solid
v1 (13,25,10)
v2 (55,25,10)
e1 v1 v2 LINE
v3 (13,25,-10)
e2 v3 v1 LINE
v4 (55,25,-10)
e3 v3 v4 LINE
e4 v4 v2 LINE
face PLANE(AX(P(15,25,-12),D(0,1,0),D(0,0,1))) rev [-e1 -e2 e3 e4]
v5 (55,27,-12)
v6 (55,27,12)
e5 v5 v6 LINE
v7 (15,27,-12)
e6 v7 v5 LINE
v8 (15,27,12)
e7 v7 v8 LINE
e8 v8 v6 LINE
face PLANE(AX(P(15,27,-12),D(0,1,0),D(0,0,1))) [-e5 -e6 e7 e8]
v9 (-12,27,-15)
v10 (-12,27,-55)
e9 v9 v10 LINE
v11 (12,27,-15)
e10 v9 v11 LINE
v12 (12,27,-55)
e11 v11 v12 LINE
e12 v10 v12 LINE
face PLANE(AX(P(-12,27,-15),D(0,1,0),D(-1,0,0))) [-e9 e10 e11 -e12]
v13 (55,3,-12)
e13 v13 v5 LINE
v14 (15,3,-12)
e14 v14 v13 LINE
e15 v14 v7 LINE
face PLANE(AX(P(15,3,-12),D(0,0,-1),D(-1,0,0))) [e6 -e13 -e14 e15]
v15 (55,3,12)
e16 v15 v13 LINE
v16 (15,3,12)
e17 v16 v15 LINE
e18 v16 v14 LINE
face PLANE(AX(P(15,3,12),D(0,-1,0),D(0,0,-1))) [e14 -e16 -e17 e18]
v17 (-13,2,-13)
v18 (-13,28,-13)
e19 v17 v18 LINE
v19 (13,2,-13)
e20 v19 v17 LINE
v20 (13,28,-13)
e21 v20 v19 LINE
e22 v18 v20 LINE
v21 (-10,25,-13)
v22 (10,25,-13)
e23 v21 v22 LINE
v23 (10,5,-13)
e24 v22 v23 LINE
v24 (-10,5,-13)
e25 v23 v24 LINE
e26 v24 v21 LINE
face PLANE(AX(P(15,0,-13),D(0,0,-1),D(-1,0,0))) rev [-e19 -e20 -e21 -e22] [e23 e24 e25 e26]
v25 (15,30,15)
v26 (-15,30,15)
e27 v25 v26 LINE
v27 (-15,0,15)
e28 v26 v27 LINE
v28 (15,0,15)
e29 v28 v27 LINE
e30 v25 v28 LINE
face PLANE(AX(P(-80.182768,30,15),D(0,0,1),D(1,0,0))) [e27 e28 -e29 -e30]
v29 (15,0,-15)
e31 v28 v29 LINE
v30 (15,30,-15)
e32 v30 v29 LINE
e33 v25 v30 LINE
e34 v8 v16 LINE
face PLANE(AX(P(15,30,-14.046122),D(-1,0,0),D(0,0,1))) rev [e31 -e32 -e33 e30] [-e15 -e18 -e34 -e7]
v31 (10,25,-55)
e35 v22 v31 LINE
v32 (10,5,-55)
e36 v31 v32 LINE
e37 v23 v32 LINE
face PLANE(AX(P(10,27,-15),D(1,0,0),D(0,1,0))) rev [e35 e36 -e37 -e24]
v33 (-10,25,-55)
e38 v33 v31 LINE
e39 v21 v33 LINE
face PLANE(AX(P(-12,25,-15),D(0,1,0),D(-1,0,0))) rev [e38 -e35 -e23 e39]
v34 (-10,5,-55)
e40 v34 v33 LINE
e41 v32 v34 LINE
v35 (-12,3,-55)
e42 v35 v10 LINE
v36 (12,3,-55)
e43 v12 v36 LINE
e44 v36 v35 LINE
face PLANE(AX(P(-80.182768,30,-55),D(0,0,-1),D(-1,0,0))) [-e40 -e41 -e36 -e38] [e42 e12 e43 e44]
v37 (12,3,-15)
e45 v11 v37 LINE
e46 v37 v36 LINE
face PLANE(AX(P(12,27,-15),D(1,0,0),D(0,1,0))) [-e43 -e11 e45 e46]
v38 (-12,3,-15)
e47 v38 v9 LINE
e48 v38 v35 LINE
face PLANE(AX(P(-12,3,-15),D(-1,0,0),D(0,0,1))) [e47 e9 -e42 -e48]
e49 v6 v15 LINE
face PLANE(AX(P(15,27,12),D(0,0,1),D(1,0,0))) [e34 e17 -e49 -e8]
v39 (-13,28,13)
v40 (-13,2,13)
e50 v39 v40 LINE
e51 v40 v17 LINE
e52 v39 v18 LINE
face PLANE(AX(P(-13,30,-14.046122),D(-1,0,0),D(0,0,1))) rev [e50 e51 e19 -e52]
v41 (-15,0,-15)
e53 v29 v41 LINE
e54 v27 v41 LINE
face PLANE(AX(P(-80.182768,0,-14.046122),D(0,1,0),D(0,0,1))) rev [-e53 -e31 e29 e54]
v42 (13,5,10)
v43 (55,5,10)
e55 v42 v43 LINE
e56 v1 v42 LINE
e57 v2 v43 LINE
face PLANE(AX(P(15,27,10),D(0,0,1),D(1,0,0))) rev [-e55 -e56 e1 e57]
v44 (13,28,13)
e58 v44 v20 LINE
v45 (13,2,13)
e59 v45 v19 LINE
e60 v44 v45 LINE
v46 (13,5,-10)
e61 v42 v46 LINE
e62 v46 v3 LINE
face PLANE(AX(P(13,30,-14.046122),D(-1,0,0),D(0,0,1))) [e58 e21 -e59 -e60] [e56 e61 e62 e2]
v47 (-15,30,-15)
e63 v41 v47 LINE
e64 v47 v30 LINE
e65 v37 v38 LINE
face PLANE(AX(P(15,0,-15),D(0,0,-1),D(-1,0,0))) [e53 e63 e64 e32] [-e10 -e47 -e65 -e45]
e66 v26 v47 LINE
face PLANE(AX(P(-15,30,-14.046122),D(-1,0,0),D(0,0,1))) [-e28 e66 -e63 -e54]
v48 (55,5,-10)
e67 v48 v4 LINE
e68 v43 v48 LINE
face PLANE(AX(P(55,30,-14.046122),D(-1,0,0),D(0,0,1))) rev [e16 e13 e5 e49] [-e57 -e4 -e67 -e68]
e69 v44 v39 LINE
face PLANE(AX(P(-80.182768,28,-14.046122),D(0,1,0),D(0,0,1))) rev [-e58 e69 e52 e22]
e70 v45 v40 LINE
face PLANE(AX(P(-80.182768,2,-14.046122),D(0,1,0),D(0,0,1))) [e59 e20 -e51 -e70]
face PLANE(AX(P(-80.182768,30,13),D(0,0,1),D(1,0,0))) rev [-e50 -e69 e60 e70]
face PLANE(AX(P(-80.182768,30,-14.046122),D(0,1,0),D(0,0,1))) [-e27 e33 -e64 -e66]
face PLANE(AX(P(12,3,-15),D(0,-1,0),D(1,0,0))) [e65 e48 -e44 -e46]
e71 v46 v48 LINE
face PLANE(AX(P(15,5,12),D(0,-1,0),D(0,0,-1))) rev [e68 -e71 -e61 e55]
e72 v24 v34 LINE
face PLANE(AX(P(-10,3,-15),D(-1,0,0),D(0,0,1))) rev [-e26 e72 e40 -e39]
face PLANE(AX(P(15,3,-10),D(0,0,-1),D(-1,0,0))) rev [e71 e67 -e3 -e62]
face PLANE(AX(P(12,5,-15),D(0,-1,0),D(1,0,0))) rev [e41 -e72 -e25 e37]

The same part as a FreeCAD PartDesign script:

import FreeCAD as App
import Part
import Sketcher
Q = App.Units.Quantity


def faces_at(feature, points):
    """Names of the faces that lie closest to the given points."""
    faces = feature.Shape.Faces
    near = lambda p: min(range(len(faces)), key=lambda i: faces[i].distToShape(Part.Vertex(*p))[0])
    return sorted({f"Face{near(p) + 1}" for p in points})


def add_polygon(sketch, points):
    """Adds a closed chain of lines whose ends are joined by coincident constraints."""
    first, n = sketch.GeometryCount, len(points)
    for a, b in zip(points, points[1:] + points[:1]):
        sketch.addGeometry(Part.LineSegment(App.Vector(*a, 0), App.Vector(*b, 0)), False)
    for i in range(n):
        sketch.addConstraint(Sketcher.Constraint("Coincident", first + i, 2, first + (i + 1) % n, 1))

doc = App.newDocument("Part")
body = doc.addObject("PartDesign::Body", "Body")

# Sketch on XZ plane
sketch1 = doc.addObject("Sketcher::SketchObject", "Sketch")
body.addObject(sketch1)
sketch1.AttachmentSupport = (doc.XZ_Plane, [""])
sketch1.MapMode = "FlatFace"
add_polygon(sketch1, [(-15, -55), (-15, 15), (55, 15), (55, -15), (15, -15), (15, -55)])  # lines 0-5
sketch1.addConstraint(Sketcher.Constraint("Vertical", 0))
sketch1.addConstraint(Sketcher.Constraint("Horizontal", 1))
sketch1.addConstraint(Sketcher.Constraint("Vertical", 2))
sketch1.addConstraint(Sketcher.Constraint("Horizontal", 3))
sketch1.addConstraint(Sketcher.Constraint("Vertical", 4))
sketch1.addConstraint(Sketcher.Constraint("Horizontal", 5))
sketch1.addConstraint(Sketcher.Constraint("Symmetric", 0, 2, 3, 2, -1, 1))
sketch1.addConstraint(Sketcher.Constraint("Equal", 1, 0))
sketch1.addConstraint(Sketcher.Constraint("Equal", 5, 2))
sketch1.addConstraint(Sketcher.Constraint("DistanceX", 1, 1, 1, 2, Q("70 mm")))
sketch1.addConstraint(Sketcher.Constraint("DistanceX", 3, 2, 3, 1, Q("40 mm")))
pad1 = doc.addObject("PartDesign::Pad", "Pad")
body.addObject(pad1)
pad1.Profile = sketch1
pad1.Length = 30
pad1.Reversed = True

# Sketch on YZ plane
sketch2 = doc.addObject("Sketcher::SketchObject", "Sketch001")
body.addObject(sketch2)
sketch2.AttachmentSupport = (doc.YZ_Plane, [""])
sketch2.MapMode = "FlatFace"
sketch2.AttachmentOffset = App.Placement(App.Vector(0, 0, 55), App.Rotation())
add_polygon(sketch2, [(30, 15), (0, 15), (0, -15), (30, -15)])  # lines 0-3
add_polygon(sketch2, [(3, -12), (3, 12), (27, 12), (27, -12)])  # lines 4-7
sketch2.addConstraint(Sketcher.Constraint("Horizontal", 0))
sketch2.addConstraint(Sketcher.Constraint("Vertical", 1))
sketch2.addConstraint(Sketcher.Constraint("Horizontal", 2))
sketch2.addConstraint(Sketcher.Constraint("Vertical", 3))
sketch2.addConstraint(Sketcher.Constraint("Vertical", 4))
sketch2.addConstraint(Sketcher.Constraint("Horizontal", 5))
sketch2.addConstraint(Sketcher.Constraint("Vertical", 6))
sketch2.addConstraint(Sketcher.Constraint("Horizontal", 7))
sketch2.addConstraint(Sketcher.Constraint("Symmetric", 0, 2, 1, 2, -1, 1))
sketch2.addConstraint(Sketcher.Constraint("Equal", 2, 1))
sketch2.addConstraint(Sketcher.Constraint("Equal", 7, 4))
sketch2.addConstraint(Sketcher.Constraint("DistanceX", 0, 2, 0, 1, Q("30 mm")))
sketch2.addConstraint(Sketcher.Constraint("DistanceX", 5, 1, 5, 2, Q("24 mm")))
sketch2.addConstraint(Sketcher.Constraint("DistanceX", -1, 1, 4, 2, Q("3 mm")))
sketch2.addConstraint(Sketcher.Constraint("DistanceY", -1, 1, 4, 2, Q("12 mm")))
pocket1 = doc.addObject("PartDesign::Pocket", "Pocket")
body.addObject(pocket1)
pocket1.Profile = sketch2
pocket1.Length = 40

# Sketch on XY plane
sketch3 = doc.addObject("Sketcher::SketchObject", "Sketch002")
body.addObject(sketch3)
sketch3.AttachmentSupport = (doc.XY_Plane, [""])
sketch3.MapMode = "FlatFace"
sketch3.AttachmentOffset = App.Placement(App.Vector(0, 0, -55), App.Rotation())
add_polygon(sketch3, [(15, 30), (15, 0), (-15, 0), (-15, 30)])  # lines 0-3
add_polygon(sketch3, [(-12, 3), (12, 3), (12, 27), (-12, 27)])  # lines 4-7
sketch3.addConstraint(Sketcher.Constraint("Vertical", 0))
sketch3.addConstraint(Sketcher.Constraint("Horizontal", 1))
sketch3.addConstraint(Sketcher.Constraint("Vertical", 2))
sketch3.addConstraint(Sketcher.Constraint("Horizontal", 3))
sketch3.addConstraint(Sketcher.Constraint("Horizontal", 4))
sketch3.addConstraint(Sketcher.Constraint("Vertical", 5))
sketch3.addConstraint(Sketcher.Constraint("Horizontal", 6))
sketch3.addConstraint(Sketcher.Constraint("Vertical", 7))
sketch3.addConstraint(Sketcher.Constraint("Symmetric", 0, 2, 1, 2, -1, 1))
sketch3.addConstraint(Sketcher.Constraint("Equal", 3, 0))
sketch3.addConstraint(Sketcher.Constraint("Equal", 6, 5))
sketch3.addConstraint(Sketcher.Constraint("DistanceX", 1, 2, 1, 1, Q("30 mm")))
sketch3.addConstraint(Sketcher.Constraint("DistanceX", 4, 1, 4, 2, Q("24 mm")))
sketch3.addConstraint(Sketcher.Constraint("DistanceX", -1, 1, 4, 2, Q("12 mm")))
sketch3.addConstraint(Sketcher.Constraint("DistanceY", -1, 1, 4, 2, Q("3 mm")))
pocket2 = doc.addObject("PartDesign::Pocket", "Pocket001")
body.addObject(pocket2)
pocket2.Profile = sketch3
pocket2.Length = 40
pocket2.Reversed = True
doc.recompute()

thickness = doc.addObject("PartDesign::Thickness", "Thickness")
body.addObject(thickness)
thickness.Base = (pocket2, faces_at(pocket2, [(55, 15, 0), (0, 15, -55)]))
thickness.Value = 2
thickness.Reversed = True
thickness.Join = "Intersection"

doc.recompute()
